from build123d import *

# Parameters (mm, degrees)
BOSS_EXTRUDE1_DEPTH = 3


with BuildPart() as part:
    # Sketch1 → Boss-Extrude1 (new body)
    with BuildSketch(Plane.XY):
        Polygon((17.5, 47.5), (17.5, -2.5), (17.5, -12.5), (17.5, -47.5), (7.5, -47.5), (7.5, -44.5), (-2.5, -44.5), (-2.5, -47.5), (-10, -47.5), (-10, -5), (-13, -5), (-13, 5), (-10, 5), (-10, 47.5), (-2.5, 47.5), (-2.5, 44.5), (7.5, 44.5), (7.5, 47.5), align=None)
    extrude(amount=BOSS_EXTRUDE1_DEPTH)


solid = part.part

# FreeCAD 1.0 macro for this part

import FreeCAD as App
import Part
import Sketcher
Q = App.Units.Quantity

doc = App.newDocument("Part")
body = doc.addObject("PartDesign::Body", "Body")

# Sketch on XY plane
sketch1 = body.newObject("Sketcher::SketchObject", "Sketch")
sketch1.AttachmentSupport = (doc.getObject("XY_Plane"), [""])
sketch1.MapMode = "FlatFace"
sketch1.addGeometry([
    Part.LineSegment(App.Vector(17.5, -47.5, 0), App.Vector(17.5, 47.5, 0)),  # 0
    Part.LineSegment(App.Vector(17.5, 47.5, 0), App.Vector(7.5, 47.5, 0)),  # 1
    Part.LineSegment(App.Vector(7.5, 47.5, 0), App.Vector(7.5, 44.5, 0)),  # 2
    Part.LineSegment(App.Vector(7.5, 44.5, 0), App.Vector(-2.5, 44.5, 0)),  # 3
    Part.LineSegment(App.Vector(-2.5, 44.5, 0), App.Vector(-2.5, 47.5, 0)),  # 4
    Part.LineSegment(App.Vector(-2.5, 47.5, 0), App.Vector(-10, 47.5, 0)),  # 5
    Part.LineSegment(App.Vector(-10, 47.5, 0), App.Vector(-10, 5, 0)),  # 6
    Part.LineSegment(App.Vector(-10, 5, 0), App.Vector(-13, 5, 0)),  # 7
    Part.LineSegment(App.Vector(-13, 5, 0), App.Vector(-13, -5, 0)),  # 8
    Part.LineSegment(App.Vector(-13, -5, 0), App.Vector(-10, -5, 0)),  # 9
    Part.LineSegment(App.Vector(-10, -5, 0), App.Vector(-10, -47.5, 0)),  # 10
    Part.LineSegment(App.Vector(-10, -47.5, 0), App.Vector(-2.5, -47.5, 0)),  # 11
    Part.LineSegment(App.Vector(-2.5, -47.5, 0), App.Vector(-2.5, -44.5, 0)),  # 12
    Part.LineSegment(App.Vector(-2.5, -44.5, 0), App.Vector(7.5, -44.5, 0)),  # 13
    Part.LineSegment(App.Vector(7.5, -44.5, 0), App.Vector(7.5, -47.5, 0)),  # 14
    Part.LineSegment(App.Vector(7.5, -47.5, 0), App.Vector(17.5, -47.5, 0)),  # 15
], False)
sketch1.addConstraint([
    Sketcher.Constraint("Coincident", 0, 2, 1, 1),
    Sketcher.Constraint("Coincident", 1, 2, 2, 1),
    Sketcher.Constraint("Coincident", 2, 2, 3, 1),
    Sketcher.Constraint("Coincident", 3, 2, 4, 1),
    Sketcher.Constraint("Coincident", 4, 2, 5, 1),
    Sketcher.Constraint("Coincident", 5, 2, 6, 1),
    Sketcher.Constraint("Coincident", 6, 2, 7, 1),
    Sketcher.Constraint("Coincident", 7, 2, 8, 1),
    Sketcher.Constraint("Coincident", 8, 2, 9, 1),
    Sketcher.Constraint("Coincident", 9, 2, 10, 1),
    Sketcher.Constraint("Coincident", 10, 2, 11, 1),
    Sketcher.Constraint("Coincident", 11, 2, 12, 1),
    Sketcher.Constraint("Coincident", 12, 2, 13, 1),
    Sketcher.Constraint("Coincident", 13, 2, 14, 1),
    Sketcher.Constraint("Coincident", 14, 2, 15, 1),
    Sketcher.Constraint("Coincident", 15, 2, 0, 1),
    Sketcher.Constraint("Vertical", 0),
    Sketcher.Constraint("Horizontal", 1),
    Sketcher.Constraint("Vertical", 2),
    Sketcher.Constraint("Horizontal", 3),
    Sketcher.Constraint("Vertical", 4),
    Sketcher.Constraint("Horizontal", 5),
    Sketcher.Constraint("Vertical", 6),
    Sketcher.Constraint("Horizontal", 7),
    Sketcher.Constraint("Vertical", 8),
    Sketcher.Constraint("Horizontal", 9),
    Sketcher.Constraint("Vertical", 10),
    Sketcher.Constraint("Horizontal", 11),
    Sketcher.Constraint("Vertical", 12),
    Sketcher.Constraint("Horizontal", 13),
    Sketcher.Constraint("Vertical", 14),
    Sketcher.Constraint("Horizontal", 15),
    Sketcher.Constraint("Symmetric", 6, 2, 9, 2, -1),
    Sketcher.Constraint("Symmetric", 4, 2, 11, 2, -1),
    Sketcher.Constraint("Symmetric", 2, 2, 13, 2, -1),
    Sketcher.Constraint("Horizontal", 1, 2, 4, 2),
    Sketcher.Constraint("Horizontal", 11, 2, 14, 2),
    Sketcher.Constraint("Equal", 1, 3),
    Sketcher.Constraint("Equal", 9, 2),
    Sketcher.Constraint("Equal", 15, 8),
    Sketcher.Constraint("DistanceX", 1, 2, 1, 1, Q("10 mm")),
    Sketcher.Constraint("DistanceX", 7, 2, 7, 1, Q("3 mm")),
    Sketcher.Constraint("DistanceY", 0, 1, 0, 2, Q("95 mm")),
    Sketcher.Constraint("DistanceX", 5, 2, 5, 1, Q("7.5 mm")),
    Sketcher.Constraint("DistanceX", 5, 2, -1, 1, Q("10 mm")),
])
pad1 = body.newObject("PartDesign::Pad", "Pad")
pad1.Profile = sketch1
pad1.Length = 3

doc.recompute()
